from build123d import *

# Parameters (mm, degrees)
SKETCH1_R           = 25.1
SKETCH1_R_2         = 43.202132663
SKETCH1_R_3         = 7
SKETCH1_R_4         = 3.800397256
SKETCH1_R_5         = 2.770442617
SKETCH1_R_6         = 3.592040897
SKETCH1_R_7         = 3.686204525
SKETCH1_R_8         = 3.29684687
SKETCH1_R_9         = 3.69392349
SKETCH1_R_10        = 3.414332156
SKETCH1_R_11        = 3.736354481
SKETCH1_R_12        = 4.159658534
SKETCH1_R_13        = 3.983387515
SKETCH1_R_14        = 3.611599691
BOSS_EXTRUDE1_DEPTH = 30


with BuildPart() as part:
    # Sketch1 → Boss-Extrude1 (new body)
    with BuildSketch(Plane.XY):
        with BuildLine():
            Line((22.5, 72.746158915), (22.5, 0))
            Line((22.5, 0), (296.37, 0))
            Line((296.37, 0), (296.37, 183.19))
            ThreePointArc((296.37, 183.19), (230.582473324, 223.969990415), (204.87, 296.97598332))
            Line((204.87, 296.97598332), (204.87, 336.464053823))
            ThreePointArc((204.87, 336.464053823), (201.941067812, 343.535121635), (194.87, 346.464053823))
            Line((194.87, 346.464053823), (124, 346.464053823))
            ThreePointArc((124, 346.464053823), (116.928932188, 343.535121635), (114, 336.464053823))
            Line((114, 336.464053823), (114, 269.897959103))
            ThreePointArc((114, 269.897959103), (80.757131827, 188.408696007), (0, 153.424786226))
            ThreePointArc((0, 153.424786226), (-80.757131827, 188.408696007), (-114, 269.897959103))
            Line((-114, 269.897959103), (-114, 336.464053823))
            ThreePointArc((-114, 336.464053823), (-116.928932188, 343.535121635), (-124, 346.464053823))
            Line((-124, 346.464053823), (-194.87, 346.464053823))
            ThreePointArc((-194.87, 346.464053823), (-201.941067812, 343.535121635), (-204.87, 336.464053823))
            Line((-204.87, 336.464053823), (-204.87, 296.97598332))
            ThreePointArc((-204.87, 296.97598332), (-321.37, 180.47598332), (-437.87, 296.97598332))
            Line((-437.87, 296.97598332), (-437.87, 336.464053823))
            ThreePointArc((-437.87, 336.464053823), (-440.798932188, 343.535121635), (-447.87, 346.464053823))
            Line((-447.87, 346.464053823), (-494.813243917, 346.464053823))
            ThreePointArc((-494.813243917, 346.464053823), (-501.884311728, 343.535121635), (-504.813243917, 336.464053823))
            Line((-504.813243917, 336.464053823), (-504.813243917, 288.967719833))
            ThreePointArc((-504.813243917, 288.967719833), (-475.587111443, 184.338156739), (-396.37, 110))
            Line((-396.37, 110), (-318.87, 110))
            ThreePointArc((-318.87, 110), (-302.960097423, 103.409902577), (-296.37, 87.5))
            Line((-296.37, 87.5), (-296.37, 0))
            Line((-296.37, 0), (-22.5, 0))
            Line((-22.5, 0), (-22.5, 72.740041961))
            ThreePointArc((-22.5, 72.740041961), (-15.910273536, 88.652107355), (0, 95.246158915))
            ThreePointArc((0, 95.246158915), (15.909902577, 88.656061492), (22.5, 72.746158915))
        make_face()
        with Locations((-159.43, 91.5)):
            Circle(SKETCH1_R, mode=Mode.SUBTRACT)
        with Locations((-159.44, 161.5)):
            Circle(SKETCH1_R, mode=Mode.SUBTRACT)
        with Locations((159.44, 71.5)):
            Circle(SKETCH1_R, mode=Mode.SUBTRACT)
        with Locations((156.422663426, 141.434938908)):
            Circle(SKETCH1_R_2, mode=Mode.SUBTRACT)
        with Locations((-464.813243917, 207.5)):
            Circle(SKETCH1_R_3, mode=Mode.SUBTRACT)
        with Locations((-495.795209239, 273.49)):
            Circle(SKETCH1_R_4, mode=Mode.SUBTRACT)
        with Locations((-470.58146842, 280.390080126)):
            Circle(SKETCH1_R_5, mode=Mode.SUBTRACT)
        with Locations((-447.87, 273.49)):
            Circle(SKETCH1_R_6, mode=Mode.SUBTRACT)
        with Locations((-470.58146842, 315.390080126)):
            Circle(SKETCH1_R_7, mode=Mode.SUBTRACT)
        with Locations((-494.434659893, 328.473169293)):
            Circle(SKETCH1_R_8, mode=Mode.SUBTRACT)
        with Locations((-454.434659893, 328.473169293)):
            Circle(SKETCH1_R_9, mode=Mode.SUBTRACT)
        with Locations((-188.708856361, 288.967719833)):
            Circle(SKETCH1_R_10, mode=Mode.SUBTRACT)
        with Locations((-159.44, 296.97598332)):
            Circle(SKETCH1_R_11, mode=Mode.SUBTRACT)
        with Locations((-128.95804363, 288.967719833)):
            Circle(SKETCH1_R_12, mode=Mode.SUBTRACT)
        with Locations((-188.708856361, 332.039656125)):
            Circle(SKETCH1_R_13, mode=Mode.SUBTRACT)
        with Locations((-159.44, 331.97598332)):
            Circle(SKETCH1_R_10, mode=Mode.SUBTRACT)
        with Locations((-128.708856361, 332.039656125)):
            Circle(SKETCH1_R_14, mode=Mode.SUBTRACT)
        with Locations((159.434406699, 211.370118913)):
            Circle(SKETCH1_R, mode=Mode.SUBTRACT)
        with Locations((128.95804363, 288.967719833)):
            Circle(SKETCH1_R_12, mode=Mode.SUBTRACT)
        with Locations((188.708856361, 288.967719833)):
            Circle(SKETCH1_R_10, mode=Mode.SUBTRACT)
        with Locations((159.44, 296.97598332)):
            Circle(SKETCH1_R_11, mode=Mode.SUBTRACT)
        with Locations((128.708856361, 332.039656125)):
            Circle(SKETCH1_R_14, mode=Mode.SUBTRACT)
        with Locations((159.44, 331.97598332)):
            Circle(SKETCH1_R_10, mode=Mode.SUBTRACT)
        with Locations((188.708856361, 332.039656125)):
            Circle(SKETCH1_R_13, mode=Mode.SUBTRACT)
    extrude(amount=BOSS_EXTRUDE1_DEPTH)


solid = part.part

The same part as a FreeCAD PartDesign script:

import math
import FreeCAD as App
import Part
import Sketcher
from FreeCAD import Vector

doc = App.newDocument("Part")
body = doc.addObject("PartDesign::Body", "Body")

# Sketch on XY plane
sketch1 = body.newObject("Sketcher::SketchObject", "Sketch")
sketch1.AttachmentSupport = (doc.getObject("XY_Plane"), [""])
sketch1.MapMode = "FlatFace"
sketch1.addGeometry(Part.LineSegment(Vector(22.5, 72.7, 0), Vector(22.5, 0, 0)), False)
sketch1.addGeometry(Part.LineSegment(Vector(22.5, 0, 0), Vector(296.4, 0, 0)), False)
sketch1.addGeometry(Part.LineSegment(Vector(296.4, 0, 0), Vector(296.4, 183.2, 0)), False)
sketch1.addGeometry(Part.ArcOfCircle(Part.Circle(Vector(321.4, 297, 0), Vector(0, 0, 1), 116.5), math.radians(180), math.radians(258)), False)
sketch1.addGeometry(Part.LineSegment(Vector(204.9, 297, 0), Vector(204.9, 336.5, 0)), False)
sketch1.addGeometry(Part.ArcOfCircle(Part.Circle(Vector(194.9, 336.5, 0), Vector(0, 0, 1), 10), math.radians(0), math.radians(90)), False)
sketch1.addGeometry(Part.LineSegment(Vector(194.9, 346.5, 0), Vector(124, 346.5, 0)), False)
sketch1.addGeometry(Part.ArcOfCircle(Part.Circle(Vector(124, 336.5, 0), Vector(0, 0, 1), 10), math.radians(90), math.radians(180)), False)
sketch1.addGeometry(Part.LineSegment(Vector(114, 336.5, 0), Vector(114, 269.9, 0)), False)
sketch1.addGeometry(Part.ArcOfCircle(Part.Circle(Vector(-2.5, 269.9, 0), Vector(0, 0, 1), 116.5), math.radians(-89), math.radians(0)), False)
sketch1.addGeometry(Part.ArcOfCircle(Part.Circle(Vector(2.5, 269.9, 0), Vector(0, 0, 1), 116.5), math.radians(180), math.radians(269)), False)
sketch1.addGeometry(Part.LineSegment(Vector(-114, 269.9, 0), Vector(-114, 336.5, 0)), False)
sketch1.addGeometry(Part.ArcOfCircle(Part.Circle(Vector(-124, 336.5, 0), Vector(0, 0, 1), 10), math.radians(0), math.radians(90)), False)
sketch1.addGeometry(Part.LineSegment(Vector(-124, 346.5, 0), Vector(-194.9, 346.5, 0)), False)
sketch1.addGeometry(Part.ArcOfCircle(Part.Circle(Vector(-194.9, 336.5, 0), Vector(0, 0, 1), 10), math.radians(90), math.radians(180)), False)
sketch1.addGeometry(Part.LineSegment(Vector(-204.9, 336.5, 0), Vector(-204.9, 297, 0)), False)
sketch1.addGeometry(Part.ArcOfCircle(Part.Circle(Vector(-321.4, 297, 0), Vector(0, 0, 1), 116.5), math.radians(180), math.radians(360)), False)
sketch1.addGeometry(Part.LineSegment(Vector(-437.9, 297, 0), Vector(-437.9, 336.5, 0)), False)
sketch1.addGeometry(Part.ArcOfCircle(Part.Circle(Vector(-447.9, 336.5, 0), Vector(0, 0, 1), 10), math.radians(0), math.radians(90)), False)
sketch1.addGeometry(Part.LineSegment(Vector(-447.9, 346.5, 0), Vector(-494.8, 346.5, 0)), False)
sketch1.addGeometry(Part.ArcOfCircle(Part.Circle(Vector(-494.8, 336.5, 0), Vector(0, 0, 1), 10), math.radians(90), math.radians(180)), False)
sketch1.addGeometry(Part.LineSegment(Vector(-504.8, 336.5, 0), Vector(-504.8, 289, 0)), False)
sketch1.addGeometry(Part.ArcOfCircle(Part.Circle(Vector(-302.9, 289, 0), Vector(0, 0, 1), 201.9), math.radians(-180), math.radians(-118)), False)
sketch1.addGeometry(Part.LineSegment(Vector(-396.4, 110, 0), Vector(-318.9, 110, 0)), False)
sketch1.addGeometry(Part.ArcOfCircle(Part.Circle(Vector(-318.9, 87.5, 0), Vector(0, 0, 1), 22.5), math.radians(0), math.radians(90)), False)
sketch1.addGeometry(Part.LineSegment(Vector(-296.4, 87.5, 0), Vector(-296.4, 0, 0)), False)
sketch1.addGeometry(Part.LineSegment(Vector(-296.4, 0, 0), Vector(-22.5, 0, 0)), False)
sketch1.addGeometry(Part.LineSegment(Vector(-22.5, 0, 0), Vector(-22.5, 72.7, 0)), False)
sketch1.addGeometry(Part.ArcOfCircle(Part.Circle(Vector(0, 72.7, 0), Vector(0, 0, 1), 22.5), math.radians(90), math.radians(180)), False)
sketch1.addGeometry(Part.ArcOfCircle(Part.Circle(Vector(0, 72.7, 0), Vector(0, 0, 1), 22.5), math.radians(0), math.radians(90)), False)
sketch1.addGeometry(Part.Circle(Vector(-159.4, 91.5, 0), Vector(0, 0, 1), 25.1), False)
sketch1.addGeometry(Part.Circle(Vector(-159.4, 161.5, 0), Vector(0, 0, 1), 25.1), False)
sketch1.addGeometry(Part.Circle(Vector(159.4, 71.5, 0), Vector(0, 0, 1), 25.1), False)
sketch1.addGeometry(Part.Circle(Vector(156.4, 141.4, 0), Vector(0, 0, 1), 43.2), False)
sketch1.addGeometry(Part.Circle(Vector(-464.8, 207.5, 0), Vector(0, 0, 1), 7), False)
sketch1.addGeometry(Part.Circle(Vector(-495.8, 273.5, 0), Vector(0, 0, 1), 3.8), False)
sketch1.addGeometry(Part.Circle(Vector(-470.6, 280.4, 0), Vector(0, 0, 1), 2.8), False)
sketch1.addGeometry(Part.Circle(Vector(-447.9, 273.5, 0), Vector(0, 0, 1), 3.6), False)
sketch1.addGeometry(Part.Circle(Vector(-470.6, 315.4, 0), Vector(0, 0, 1), 3.7), False)
sketch1.addGeometry(Part.Circle(Vector(-494.4, 328.5, 0), Vector(0, 0, 1), 3.3), False)
sketch1.addGeometry(Part.Circle(Vector(-454.4, 328.5, 0), Vector(0, 0, 1), 3.7), False)
sketch1.addGeometry(Part.Circle(Vector(-188.7, 289, 0), Vector(0, 0, 1), 3.4), False)
sketch1.addGeometry(Part.Circle(Vector(-159.4, 297, 0), Vector(0, 0, 1), 3.7), False)
sketch1.addGeometry(Part.Circle(Vector(-188.7, 332, 0), Vector(0, 0, 1), 4), False)
sketch1.addGeometry(Part.Circle(Vector(-159.4, 332, 0), Vector(0, 0, 1), 3.4), False)
sketch1.addGeometry(Part.Circle(Vector(159.4, 211.4, 0), Vector(0, 0, 1), 25.1), False)
sketch1.addGeometry(Part.Circle(Vector(-129, 289, 0), Vector(0, 0, 1), 4.2), False)
sketch1.addGeometry(Part.Circle(Vector(-128.7, 332, 0), Vector(0, 0, 1), 3.6), False)
sketch1.addGeometry(Part.Circle(Vector(129, 289, 0), Vector(0, 0, 1), 4.2), False)
sketch1.addGeometry(Part.Circle(Vector(188.7, 289, 0), Vector(0, 0, 1), 3.4), False)
sketch1.addGeometry(Part.Circle(Vector(159.4, 297, 0), Vector(0, 0, 1), 3.7), False)
sketch1.addGeometry(Part.Circle(Vector(128.7, 332, 0), Vector(0, 0, 1), 3.6), False)
sketch1.addGeometry(Part.Circle(Vector(159.4, 332, 0), Vector(0, 0, 1), 3.4), False)
sketch1.addGeometry(Part.Circle(Vector(188.7, 332, 0), Vector(0, 0, 1), 4), False)
sketch1.addConstraint(Sketcher.Constraint("Coincident", 0, 2, 1, 1))
sketch1.addConstraint(Sketcher.Constraint("Coincident", 1, 2, 2, 1))
sketch1.addConstraint(Sketcher.Constraint("Coincident", 2, 2, 3, 2))
sketch1.addConstraint(Sketcher.Constraint("Tangent", 3, 1, 4, 1))
sketch1.addConstraint(Sketcher.Constraint("Tangent", 4, 2, 5, 1))
sketch1.addConstraint(Sketcher.Constraint("Tangent", 5, 2, 6, 1))
sketch1.addConstraint(Sketcher.Constraint("Tangent", 6, 2, 7, 1))
sketch1.addConstraint(Sketcher.Constraint("Tangent", 7, 2, 8, 1))
sketch1.addConstraint(Sketcher.Constraint("Tangent", 8, 2, 9, 2))
sketch1.addConstraint(Sketcher.Constraint("Coincident", 9, 1, 10, 2))
sketch1.addConstraint(Sketcher.Constraint("Tangent", 10, 1, 11, 1))
sketch1.addConstraint(Sketcher.Constraint("Tangent", 11, 2, 12, 1))
sketch1.addConstraint(Sketcher.Constraint("Tangent", 12, 2, 13, 1))
sketch1.addConstraint(Sketcher.Constraint("Tangent", 13, 2, 14, 1))
sketch1.addConstraint(Sketcher.Constraint("Tangent", 14, 2, 15, 1))
sketch1.addConstraint(Sketcher.Constraint("Tangent", 15, 2, 16, 2))
sketch1.addConstraint(Sketcher.Constraint("Tangent", 16, 1, 17, 1))
sketch1.addConstraint(Sketcher.Constraint("Tangent", 17, 2, 18, 1))
sketch1.addConstraint(Sketcher.Constraint("Tangent", 18, 2, 19, 1))
sketch1.addConstraint(Sketcher.Constraint("Tangent", 19, 2, 20, 1))
sketch1.addConstraint(Sketcher.Constraint("Tangent", 20, 2, 21, 1))
sketch1.addConstraint(Sketcher.Constraint("Tangent", 21, 2, 22, 1))
sketch1.addConstraint(Sketcher.Constraint("Coincident", 22, 2, 23, 1))
sketch1.addConstraint(Sketcher.Constraint("Tangent", 23, 2, 24, 2))
sketch1.addConstraint(Sketcher.Constraint("Tangent", 24, 1, 25, 1))
sketch1.addConstraint(Sketcher.Constraint("Coincident", 25, 2, 26, 1))
sketch1.addConstraint(Sketcher.Constraint("Coincident", 26, 2, 27, 1))
sketch1.addConstraint(Sketcher.Constraint("Tangent", 27, 2, 28, 2))
sketch1.addConstraint(Sketcher.Constraint("Coincident", 28, 1, 29, 2))
sketch1.addConstraint(Sketcher.Constraint("Tangent", 29, 1, 0, 1))
sketch1.addConstraint(Sketcher.Constraint("Vertical", 0))
sketch1.addConstraint(Sketcher.Constraint("Horizontal", 1))
sketch1.addConstraint(Sketcher.Constraint("Vertical", 2))
sketch1.addConstraint(Sketcher.Constraint("Vertical", 4))
sketch1.addConstraint(Sketcher.Constraint("Horizontal", 6))
sketch1.addConstraint(Sketcher.Constraint("Vertical", 8))
sketch1.addConstraint(Sketcher.Constraint("Vertical", 11))
sketch1.addConstraint(Sketcher.Constraint("Horizontal", 13))
sketch1.addConstraint(Sketcher.Constraint("Vertical", 15))
sketch1.addConstraint(Sketcher.Constraint("Vertical", 17))
sketch1.addConstraint(Sketcher.Constraint("Horizontal", 19))
sketch1.addConstraint(Sketcher.Constraint("Vertical", 21))
sketch1.addConstraint(Sketcher.Constraint("Horizontal", 23))
sketch1.addConstraint(Sketcher.Constraint("Vertical", 25))
sketch1.addConstraint(Sketcher.Constraint("Horizontal", 26))
sketch1.addConstraint(Sketcher.Constraint("Vertical", 27))
sketch1.addConstraint(Sketcher.Constraint("Equal", 5, 7))
sketch1.addConstraint(Sketcher.Constraint("Equal", 3, 9))
sketch1.addConstraint(Sketcher.Constraint("Equal", 9, 10))
sketch1.addConstraint(Sketcher.Constraint("Equal", 7, 12))
sketch1.addConstraint(Sketcher.Constraint("Equal", 12, 14))
sketch1.addConstraint(Sketcher.Constraint("Equal", 10, 16))
sketch1.addConstraint(Sketcher.Constraint("Equal", 14, 18))
sketch1.addConstraint(Sketcher.Constraint("Equal", 18, 20))
sketch1.addConstraint(Sketcher.Constraint("Equal", 24, 29))
sketch1.addConstraint(Sketcher.Constraint("Equal", 30, 31))
sketch1.addConstraint(Sketcher.Constraint("Equal", 31, 32))
sketch1.addConstraint(Sketcher.Constraint("Equal", 41, 44))
sketch1.addConstraint(Sketcher.Constraint("Equal", 32, 45))
sketch1.addConstraint(Sketcher.Constraint("Equal", 46, 48))
sketch1.addConstraint(Sketcher.Constraint("Equal", 44, 49))
sketch1.addConstraint(Sketcher.Constraint("Equal", 42, 50))
sketch1.addConstraint(Sketcher.Constraint("Equal", 47, 51))
sketch1.addConstraint(Sketcher.Constraint("Equal", 49, 52))
sketch1.addConstraint(Sketcher.Constraint("Equal", 43, 53))
sketch1.addConstraint(Sketcher.Constraint("Symmetric", 1, 2, 25, 2, -1, 1))
sketch1.addConstraint(Sketcher.Constraint("Symmetric", 9, 3, 10, 3, -2))
sketch1.addConstraint(Sketcher.Constraint("Symmetric", 5, 3, 14, 3, -2))
sketch1.addConstraint(Sketcher.Constraint("Symmetric", 46, 3, 48, 3, -2))
sketch1.addConstraint(Sketcher.Constraint("Symmetric", 41, 3, 49, 3, -2))
sketch1.addConstraint(Sketcher.Constraint("Symmetric", 42, 3, 50, 3, -2))
sketch1.addConstraint(Sketcher.Constraint("Symmetric", 47, 3, 51, 3, -2))
sketch1.addConstraint(Sketcher.Constraint("Symmetric", 44, 3, 52, 3, -2))
sketch1.addConstraint(Sketcher.Constraint("Symmetric", 43, 3, 53, 3, -2))
sketch1.addConstraint(Sketcher.Constraint("Symmetric", 0, 2, 26, 2, -2))
sketch1.addConstraint(Sketcher.Constraint("PointOnObject", 29, 3, -2))
sketch1.addConstraint(Sketcher.Constraint("PointOnObject", 28, 1, -2))
sketch1.addConstraint(Sketcher.Constraint("Horizontal", 3, 3, 16, 3))
sketch1.addConstraint(Sketcher.Constraint("Horizontal", 14, 3, 18, 3))
sketch1.addConstraint(Sketcher.Constraint("Horizontal", 35, 3, 37, 3))
sketch1.addConstraint(Sketcher.Constraint("Horizontal", 39, 3, 40, 3))
sketch1.addConstraint(Sketcher.Constraint("Horizontal", 22, 3, 41, 3))
sketch1.addConstraint(Sketcher.Constraint("Horizontal", 16, 3, 42, 3))
sketch1.addConstraint(Sketcher.Constraint("Horizontal", 41, 3, 46, 3))
sketch1.addConstraint(Sketcher.Constraint("Horizontal", 43, 3, 47, 3))
sketch1.addConstraint(Sketcher.Constraint("Vertical", 18, 3, 37, 3))
sketch1.addConstraint(Sketcher.Constraint("Vertical", 36, 3, 38, 3))
sketch1.addConstraint(Sketcher.Constraint("Vertical", 31, 3, 42, 3))
sketch1.addConstraint(Sketcher.Constraint("Vertical", 41, 3, 43, 3))
sketch1.addConstraint(Sketcher.Constraint("Vertical", 42, 3, 44, 3))
sketch1.addConstraint(Sketcher.Constraint("Vertical", 32, 3, 50, 3))
sketch1.addConstraint(Sketcher.Constraint("Diameter", 34, 14.0))
sketch1.addConstraint(Sketcher.Constraint("Radius", 5, 10.0))
sketch1.addConstraint(Sketcher.Constraint("Diameter", 30, 50.2))
sketch1.addConstraint(Sketcher.Constraint("Radius", 3, 116.5))
sketch1.addConstraint(Sketcher.Constraint("Radius", 22, 201.9))
sketch1.addConstraint(Sketcher.Constraint("Radius", 24, 22.5))
sketch1.addConstraint(Sketcher.Constraint("DistanceX", 23, 1, 23, 2, 77.5))
sketch1.addConstraint(Sketcher.Constraint("DistanceY", 25, 2, 25, 1, 87.5))
sketch1.addConstraint(Sketcher.Constraint("DistanceX", -1, 1, 7, 3, 124.0))
sketch1.addConstraint(Sketcher.Constraint("Diameter", 47, 7.223199))
sketch1.addConstraint(Sketcher.Constraint("DistanceX", 1, 1, 1, 2, 273.87))
sketch1.addConstraint(Sketcher.Constraint("DistanceX", 6, 2, 6, 1, 70.87))
sketch1.addConstraint(Sketcher.Constraint("DistanceY", 2, 1, 2, 2, 183.19))
sketch1.addConstraint(Sketcher.Constraint("DistanceY", -1, 1, 30, 3, 91.5))
sketch1.addConstraint(Sketcher.Constraint("DistanceY", -1, 1, 31, 3, 161.5))
sketch1.addConstraint(Sketcher.Constraint("DistanceY", -1, 1, 32, 3, 71.5))
sketch1.addConstraint(Sketcher.Constraint("DistanceY", -1, 1, 34, 3, 207.5))
sketch1.addConstraint(Sketcher.Constraint("Diameter", 37, 7.184082))
sketch1.addConstraint(Sketcher.Constraint("Diameter", 38, 7.372409))
sketch1.addConstraint(Sketcher.Constraint("Diameter", 42, 7.472709))
sketch1.addConstraint(Sketcher.Constraint("DistanceX", 30, 3, -1, 1, 159.43))
sketch1.addConstraint(Sketcher.Constraint("DistanceX", 31, 3, -1, 1, 159.44))
sketch1.addConstraint(Sketcher.Constraint("DistanceY", -1, 1, 35, 3, 273.49))
sketch1.addConstraint(Sketcher.Constraint("Diameter", 33, 86.404265))
sketch1.addConstraint(Sketcher.Constraint("Diameter", 35, 7.600795))
sketch1.addConstraint(Sketcher.Constraint("Diameter", 36, 5.540885))
sketch1.addConstraint(Sketcher.Constraint("Diameter", 39, 6.593694))
sketch1.addConstraint(Sketcher.Constraint("Diameter", 40, 7.387847))
sketch1.addConstraint(Sketcher.Constraint("Diameter", 41, 6.828664))
sketch1.addConstraint(Sketcher.Constraint("Diameter", 43, 7.966775))
sketch1.addConstraint(Sketcher.Constraint("Diameter", 46, 8.319317))
sketch1.addConstraint(Sketcher.Constraint("Radius", 28, 22.506118))
sketch1.addConstraint(Sketcher.Constraint("DistanceY", 0, 2, 0, 1, 72.746159))
sketch1.addConstraint(Sketcher.Constraint("DistanceY", 4, 1, 4, 2, 39.488071))
sketch1.addConstraint(Sketcher.Constraint("DistanceX", 19, 2, 19, 1, 46.943244))
sketch1.addConstraint(Sketcher.Constraint("DistanceY", 8, 2, 8, 1, 66.566095))
sketch1.addConstraint(Sketcher.Constraint("DistanceY", -1, 1, 33, 3, 141.434939))
sketch1.addConstraint(Sketcher.Constraint("DistanceX", 35, 3, -1, 1, 495.795209))
sketch1.addConstraint(Sketcher.Constraint("DistanceX", 36, 3, -1, 1, 470.581468))
sketch1.addConstraint(Sketcher.Constraint("DistanceY", -1, 1, 36, 3, 280.39008))
sketch1.addConstraint(Sketcher.Constraint("DistanceY", -1, 1, 38, 3, 315.39008))
sketch1.addConstraint(Sketcher.Constraint("DistanceX", 39, 3, -1, 1, 494.43466))
sketch1.addConstraint(Sketcher.Constraint("DistanceY", -1, 1, 39, 3, 328.473169))
sketch1.addConstraint(Sketcher.Constraint("DistanceX", 40, 3, -1, 1, 454.43466))
sketch1.addConstraint(Sketcher.Constraint("DistanceY", -1, 1, 45, 3, 211.370119))
sketch1.addConstraint(Sketcher.Constraint("DistanceX", -1, 1, 33, 3, 156.422663))
sketch1.addConstraint(Sketcher.Constraint("DistanceX", 34, 3, -1, 1, 464.813244))
sketch1.addConstraint(Sketcher.Constraint("DistanceX", 41, 3, -1, 1, 188.708856))
sketch1.addConstraint(Sketcher.Constraint("DistanceY", -1, 1, 43, 3, 332.039656))
sketch1.addConstraint(Sketcher.Constraint("DistanceY", -1, 1, 44, 3, 331.975983))
sketch1.addConstraint(Sketcher.Constraint("DistanceX", -1, 1, 45, 3, 159.434407))
sketch1.addConstraint(Sketcher.Constraint("DistanceX", 46, 3, -1, 1, 128.958044))
sketch1.addConstraint(Sketcher.Constraint("DistanceX", 47, 3, -1, 1, 128.708856))
pad1 = body.newObject("PartDesign::Pad", "Pad")
pad1.Profile = sketch1
pad1.Length = 30

doc.recompute()
